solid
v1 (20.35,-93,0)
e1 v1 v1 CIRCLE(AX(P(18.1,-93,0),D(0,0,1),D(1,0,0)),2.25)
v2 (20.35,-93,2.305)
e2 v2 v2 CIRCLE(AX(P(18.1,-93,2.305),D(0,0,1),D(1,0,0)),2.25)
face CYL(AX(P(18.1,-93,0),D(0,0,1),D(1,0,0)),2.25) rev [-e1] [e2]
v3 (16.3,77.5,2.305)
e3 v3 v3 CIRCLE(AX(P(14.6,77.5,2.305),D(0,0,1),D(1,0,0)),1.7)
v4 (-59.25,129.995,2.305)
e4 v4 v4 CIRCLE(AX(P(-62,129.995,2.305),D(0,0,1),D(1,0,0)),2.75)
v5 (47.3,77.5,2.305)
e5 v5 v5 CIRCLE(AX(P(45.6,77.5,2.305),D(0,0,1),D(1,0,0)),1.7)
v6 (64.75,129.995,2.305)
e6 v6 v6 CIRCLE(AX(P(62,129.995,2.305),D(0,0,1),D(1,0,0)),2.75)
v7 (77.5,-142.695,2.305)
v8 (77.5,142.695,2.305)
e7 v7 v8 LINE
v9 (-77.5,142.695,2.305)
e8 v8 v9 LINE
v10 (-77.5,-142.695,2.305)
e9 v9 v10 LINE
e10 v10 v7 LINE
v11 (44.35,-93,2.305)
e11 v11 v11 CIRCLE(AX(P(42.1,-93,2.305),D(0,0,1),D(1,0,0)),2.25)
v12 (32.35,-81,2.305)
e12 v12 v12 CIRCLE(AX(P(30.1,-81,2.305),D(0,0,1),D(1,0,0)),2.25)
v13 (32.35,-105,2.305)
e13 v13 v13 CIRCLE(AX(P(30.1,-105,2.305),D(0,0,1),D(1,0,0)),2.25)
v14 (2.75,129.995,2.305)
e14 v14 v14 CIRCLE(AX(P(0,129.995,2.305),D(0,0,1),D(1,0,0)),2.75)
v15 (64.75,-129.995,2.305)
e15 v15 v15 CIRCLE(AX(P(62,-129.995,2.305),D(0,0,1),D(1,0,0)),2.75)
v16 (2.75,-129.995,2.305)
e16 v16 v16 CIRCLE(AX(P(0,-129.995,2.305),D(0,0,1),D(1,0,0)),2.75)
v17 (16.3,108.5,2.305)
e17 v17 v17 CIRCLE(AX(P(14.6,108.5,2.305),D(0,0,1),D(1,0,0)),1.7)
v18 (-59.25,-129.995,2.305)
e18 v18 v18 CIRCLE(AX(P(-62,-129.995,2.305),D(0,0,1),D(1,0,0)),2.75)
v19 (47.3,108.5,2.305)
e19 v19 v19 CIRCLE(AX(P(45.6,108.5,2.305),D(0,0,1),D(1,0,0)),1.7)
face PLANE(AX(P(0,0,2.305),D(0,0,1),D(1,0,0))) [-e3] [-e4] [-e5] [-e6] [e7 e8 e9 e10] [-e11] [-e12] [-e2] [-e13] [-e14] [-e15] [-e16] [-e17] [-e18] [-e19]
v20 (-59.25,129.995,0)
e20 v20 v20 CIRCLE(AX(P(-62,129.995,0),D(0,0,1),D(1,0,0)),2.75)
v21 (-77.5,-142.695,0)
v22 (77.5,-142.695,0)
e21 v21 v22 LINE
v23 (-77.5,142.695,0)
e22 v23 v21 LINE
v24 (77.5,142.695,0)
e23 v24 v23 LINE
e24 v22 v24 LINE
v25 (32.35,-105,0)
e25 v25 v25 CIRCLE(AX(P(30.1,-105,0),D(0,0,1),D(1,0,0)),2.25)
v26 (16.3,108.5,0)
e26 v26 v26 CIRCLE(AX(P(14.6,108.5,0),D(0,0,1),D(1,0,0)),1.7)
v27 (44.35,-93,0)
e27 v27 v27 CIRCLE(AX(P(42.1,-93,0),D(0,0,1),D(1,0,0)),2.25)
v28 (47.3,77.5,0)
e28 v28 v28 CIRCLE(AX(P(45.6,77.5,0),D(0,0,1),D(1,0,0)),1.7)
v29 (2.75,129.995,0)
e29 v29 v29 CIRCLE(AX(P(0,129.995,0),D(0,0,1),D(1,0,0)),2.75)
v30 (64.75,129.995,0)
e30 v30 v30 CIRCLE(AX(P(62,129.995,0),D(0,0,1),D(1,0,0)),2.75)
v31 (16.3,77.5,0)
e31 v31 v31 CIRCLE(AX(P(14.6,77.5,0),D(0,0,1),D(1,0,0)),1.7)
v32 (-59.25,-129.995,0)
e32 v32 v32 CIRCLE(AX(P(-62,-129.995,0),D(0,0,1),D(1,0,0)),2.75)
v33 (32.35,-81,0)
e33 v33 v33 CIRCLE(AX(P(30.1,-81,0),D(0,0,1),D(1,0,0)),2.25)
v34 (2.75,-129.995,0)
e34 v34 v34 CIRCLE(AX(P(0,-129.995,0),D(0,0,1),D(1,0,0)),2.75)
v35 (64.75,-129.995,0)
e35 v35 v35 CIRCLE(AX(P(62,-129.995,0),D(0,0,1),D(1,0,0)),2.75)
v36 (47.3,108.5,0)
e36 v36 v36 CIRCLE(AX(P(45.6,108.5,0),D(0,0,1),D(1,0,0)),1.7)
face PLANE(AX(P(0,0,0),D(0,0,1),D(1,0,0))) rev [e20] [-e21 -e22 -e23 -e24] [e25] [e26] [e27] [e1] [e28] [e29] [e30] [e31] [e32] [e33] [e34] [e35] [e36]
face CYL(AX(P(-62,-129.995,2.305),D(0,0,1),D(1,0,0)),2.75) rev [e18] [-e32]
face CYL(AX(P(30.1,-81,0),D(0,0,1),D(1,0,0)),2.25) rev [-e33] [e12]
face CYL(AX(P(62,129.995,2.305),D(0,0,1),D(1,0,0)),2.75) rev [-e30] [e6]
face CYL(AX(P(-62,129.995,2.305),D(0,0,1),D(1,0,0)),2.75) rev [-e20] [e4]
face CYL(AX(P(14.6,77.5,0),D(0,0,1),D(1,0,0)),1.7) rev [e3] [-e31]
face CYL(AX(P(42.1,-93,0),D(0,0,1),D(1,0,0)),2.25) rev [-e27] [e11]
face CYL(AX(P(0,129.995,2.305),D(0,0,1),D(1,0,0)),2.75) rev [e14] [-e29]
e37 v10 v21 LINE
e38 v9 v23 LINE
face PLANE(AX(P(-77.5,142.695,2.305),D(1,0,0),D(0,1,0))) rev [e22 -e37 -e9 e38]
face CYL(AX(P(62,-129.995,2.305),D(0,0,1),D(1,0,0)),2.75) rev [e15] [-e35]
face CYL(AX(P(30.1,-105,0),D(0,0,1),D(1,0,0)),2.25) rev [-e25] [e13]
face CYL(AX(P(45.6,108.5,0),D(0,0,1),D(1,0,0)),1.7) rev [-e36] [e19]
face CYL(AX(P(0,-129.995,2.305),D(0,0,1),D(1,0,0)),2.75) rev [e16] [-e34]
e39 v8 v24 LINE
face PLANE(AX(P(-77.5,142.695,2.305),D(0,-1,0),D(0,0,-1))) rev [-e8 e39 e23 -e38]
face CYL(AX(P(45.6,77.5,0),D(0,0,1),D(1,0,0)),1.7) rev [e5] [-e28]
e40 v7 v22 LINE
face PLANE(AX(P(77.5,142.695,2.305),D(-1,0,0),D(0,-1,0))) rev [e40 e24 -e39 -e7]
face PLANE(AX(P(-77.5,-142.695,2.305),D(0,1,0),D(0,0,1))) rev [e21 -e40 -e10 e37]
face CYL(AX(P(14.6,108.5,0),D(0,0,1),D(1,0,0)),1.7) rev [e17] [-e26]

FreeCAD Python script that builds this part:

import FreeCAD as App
import Part
import Sketcher

doc = App.newDocument("Part")
body = doc.addObject("PartDesign::Body", "Body")

sketch1 = doc.addObject("Sketcher::SketchObject", "Sketch")
body.addObject(sketch1)
sketch1.AttachmentSupport = (doc.XY_Plane, [""])
sketch1.MapMode = "FlatFace"
sketch1.addGeometry([
    Part.LineSegment(App.Vector(-77.5, 142.695, 0), App.Vector(-77.5, -142.695, 0)),
    Part.LineSegment(App.Vector(-77.5, -142.695, 0), App.Vector(77.5, -142.695, 0)),
    Part.LineSegment(App.Vector(77.5, -142.695, 0), App.Vector(77.5, 142.695, 0)),
    Part.LineSegment(App.Vector(77.5, 142.695, 0), App.Vector(-77.5, 142.695, 0)),
], False)
sketch1.addConstraint([
    Sketcher.Constraint("Coincident", 0, 2, 1, 1),
    Sketcher.Constraint("Coincident", 1, 2, 2, 1),
    Sketcher.Constraint("Coincident", 2, 2, 3, 1),
    Sketcher.Constraint("Coincident", 3, 2, 0, 1),
    Sketcher.Constraint("Vertical", 0),
    Sketcher.Constraint("Horizontal", 1),
    Sketcher.Constraint("Vertical", 2),
    Sketcher.Constraint("Horizontal", 3),
    Sketcher.Constraint("Symmetric", 0, 2, 2, 2, -1, 1),
    Sketcher.Constraint("DistanceX", 1, 1, 1, 2, 155.0),
    Sketcher.Constraint("DistanceY", 0, 2, 0, 1, 285.39),
])
pad1 = doc.addObject("PartDesign::Pad", "Pad")
body.addObject(pad1)
pad1.Profile = sketch1
pad1.Length = 2.305

sketch2 = doc.addObject("Sketcher::SketchObject", "Sketch001")
body.addObject(sketch2)
sketch2.AttachmentSupport = (doc.XY_Plane, [""])
sketch2.MapMode = "FlatFace"
sketch2.AttachmentOffset = App.Placement(App.Vector(0, 0, 2.305), App.Rotation())
sketch2.addGeometry([
    Part.Circle(App.Vector(-62, 129.995, 0), App.Vector(0, 0, 1), 2.75),
    Part.Circle(App.Vector(0, 129.995, 0), App.Vector(0, 0, 1), 2.75),
    Part.Circle(App.Vector(-62, -129.995, 0), App.Vector(0, 0, 1), 2.75),
    Part.Circle(App.Vector(0, -129.995, 0), App.Vector(0, 0, 1), 2.75),
    Part.Circle(App.Vector(62, -129.995, 0), App.Vector(0, 0, 1), 2.75),
], False)
sketch2.addConstraint([
    Sketcher.Constraint("Equal", 0, 1),
    Sketcher.Constraint("Equal", 1, 2),
    Sketcher.Constraint("Equal", 2, 3),
    Sketcher.Constraint("Equal", 3, 4),
    Sketcher.Constraint("Symmetric", 1, 3, 3, 3, -1, 1),
    Sketcher.Constraint("Symmetric", 0, 3, 4, 3, -1, 1),
    Sketcher.Constraint("Symmetric", 2, 3, 4, 3, -2),
    Sketcher.Constraint("PointOnObject", 1, 3, -2),
    Sketcher.Constraint("Horizontal", 0, 3, 1, 3),
    Sketcher.Constraint("Diameter", 0, 5.5),
    Sketcher.Constraint("DistanceX", 0, 3, -1, 1, 62.0),
    Sketcher.Constraint("DistanceY", 2, 3, 0, 3, 259.99),
])
doc.recompute()
hole = doc.addObject("PartDesign::Hole", "Hole")
body.addObject(hole)
hole.Profile = sketch2
hole.ThreadType = "None"
hole.Diameter = 5.5
hole.DepthType = "ThroughAll"

sketch3 = doc.addObject("Sketcher::SketchObject", "Sketch002")
body.addObject(sketch3)
sketch3.AttachmentSupport = (doc.XY_Plane, [""])
sketch3.MapMode = "FlatFace"
sketch3.AttachmentOffset = App.Placement(App.Vector(0, 0, 2.305), App.Rotation())
sketch3.addGeometry([
    Part.Circle(App.Vector(30.1, -81, 0), App.Vector(0, 0, 1), 2.25),
    Part.Circle(App.Vector(42.1, -93, 0), App.Vector(0, 0, 1), 2.25),
    Part.Circle(App.Vector(30.1, -105, 0), App.Vector(0, 0, 1), 2.25),
    Part.Circle(App.Vector(18.1, -93, 0), App.Vector(0, 0, 1), 2.25),
    Part.Circle(App.Vector(45.6, 108.5, 0), App.Vector(0, 0, 1), 1.7),
    Part.Circle(App.Vector(14.6, 77.5, 0), App.Vector(0, 0, 1), 1.7),
    Part.Circle(App.Vector(45.6, 77.5, 0), App.Vector(0, 0, 1), 1.7),
    Part.Circle(App.Vector(14.6, 108.5, 0), App.Vector(0, 0, 1), 1.7),
], False)
sketch3.addConstraint([
    Sketcher.Constraint("Equal", 0, 1),
    Sketcher.Constraint("Equal", 1, 2),
    Sketcher.Constraint("Equal", 2, 3),
    Sketcher.Constraint("Equal", 4, 5),
    Sketcher.Constraint("Equal", 5, 6),
    Sketcher.Constraint("Equal", 6, 7),
    Sketcher.Constraint("Horizontal", 1, 3, 3, 3),
    Sketcher.Constraint("Horizontal", 5, 3, 6, 3),
    Sketcher.Constraint("Horizontal", 4, 3, 7, 3),
    Sketcher.Constraint("Vertical", 0, 3, 2, 3),
    Sketcher.Constraint("Vertical", 4, 3, 6, 3),
    Sketcher.Constraint("Vertical", 5, 3, 7, 3),
    Sketcher.Constraint("Diameter", 0, 4.5),
    Sketcher.Constraint("Diameter", 4, 3.4),
    Sketcher.Constraint("DistanceY", 0, 3, -1, 1, 81.0),
    Sketcher.Constraint("DistanceY", 1, 3, -1, 1, 93.0),
    Sketcher.Constraint("DistanceY", 2, 3, -1, 1, 105.0),
    Sketcher.Constraint("DistanceX", 0, 3, 1, 3, 12.0),
    Sketcher.Constraint("DistanceX", 3, 3, 0, 3, 12.0),
    Sketcher.Constraint("DistanceX", 5, 3, 4, 3, 31.0),
    Sketcher.Constraint("DistanceY", 5, 3, 4, 3, 31.0),
    Sketcher.Constraint("DistanceX", -1, 1, 0, 3, 30.1),
    Sketcher.Constraint("DistanceX", -1, 1, 4, 3, 45.6),
    Sketcher.Constraint("DistanceY", -1, 1, 4, 3, 108.5),
])
pocket1 = doc.addObject("PartDesign::Pocket", "Pocket")
body.addObject(pocket1)
pocket1.Profile = sketch3
pocket1.Type = "ThroughAll"
doc.recompute()

mirrored = doc.addObject("PartDesign::Mirrored", "Mirrored")
body.addObject(mirrored)
mirrored.Originals = [hole]
mirrored.MirrorPlane = (doc.XZ_Plane, [""])
body.Tip = mirrored

doc.recompute()
